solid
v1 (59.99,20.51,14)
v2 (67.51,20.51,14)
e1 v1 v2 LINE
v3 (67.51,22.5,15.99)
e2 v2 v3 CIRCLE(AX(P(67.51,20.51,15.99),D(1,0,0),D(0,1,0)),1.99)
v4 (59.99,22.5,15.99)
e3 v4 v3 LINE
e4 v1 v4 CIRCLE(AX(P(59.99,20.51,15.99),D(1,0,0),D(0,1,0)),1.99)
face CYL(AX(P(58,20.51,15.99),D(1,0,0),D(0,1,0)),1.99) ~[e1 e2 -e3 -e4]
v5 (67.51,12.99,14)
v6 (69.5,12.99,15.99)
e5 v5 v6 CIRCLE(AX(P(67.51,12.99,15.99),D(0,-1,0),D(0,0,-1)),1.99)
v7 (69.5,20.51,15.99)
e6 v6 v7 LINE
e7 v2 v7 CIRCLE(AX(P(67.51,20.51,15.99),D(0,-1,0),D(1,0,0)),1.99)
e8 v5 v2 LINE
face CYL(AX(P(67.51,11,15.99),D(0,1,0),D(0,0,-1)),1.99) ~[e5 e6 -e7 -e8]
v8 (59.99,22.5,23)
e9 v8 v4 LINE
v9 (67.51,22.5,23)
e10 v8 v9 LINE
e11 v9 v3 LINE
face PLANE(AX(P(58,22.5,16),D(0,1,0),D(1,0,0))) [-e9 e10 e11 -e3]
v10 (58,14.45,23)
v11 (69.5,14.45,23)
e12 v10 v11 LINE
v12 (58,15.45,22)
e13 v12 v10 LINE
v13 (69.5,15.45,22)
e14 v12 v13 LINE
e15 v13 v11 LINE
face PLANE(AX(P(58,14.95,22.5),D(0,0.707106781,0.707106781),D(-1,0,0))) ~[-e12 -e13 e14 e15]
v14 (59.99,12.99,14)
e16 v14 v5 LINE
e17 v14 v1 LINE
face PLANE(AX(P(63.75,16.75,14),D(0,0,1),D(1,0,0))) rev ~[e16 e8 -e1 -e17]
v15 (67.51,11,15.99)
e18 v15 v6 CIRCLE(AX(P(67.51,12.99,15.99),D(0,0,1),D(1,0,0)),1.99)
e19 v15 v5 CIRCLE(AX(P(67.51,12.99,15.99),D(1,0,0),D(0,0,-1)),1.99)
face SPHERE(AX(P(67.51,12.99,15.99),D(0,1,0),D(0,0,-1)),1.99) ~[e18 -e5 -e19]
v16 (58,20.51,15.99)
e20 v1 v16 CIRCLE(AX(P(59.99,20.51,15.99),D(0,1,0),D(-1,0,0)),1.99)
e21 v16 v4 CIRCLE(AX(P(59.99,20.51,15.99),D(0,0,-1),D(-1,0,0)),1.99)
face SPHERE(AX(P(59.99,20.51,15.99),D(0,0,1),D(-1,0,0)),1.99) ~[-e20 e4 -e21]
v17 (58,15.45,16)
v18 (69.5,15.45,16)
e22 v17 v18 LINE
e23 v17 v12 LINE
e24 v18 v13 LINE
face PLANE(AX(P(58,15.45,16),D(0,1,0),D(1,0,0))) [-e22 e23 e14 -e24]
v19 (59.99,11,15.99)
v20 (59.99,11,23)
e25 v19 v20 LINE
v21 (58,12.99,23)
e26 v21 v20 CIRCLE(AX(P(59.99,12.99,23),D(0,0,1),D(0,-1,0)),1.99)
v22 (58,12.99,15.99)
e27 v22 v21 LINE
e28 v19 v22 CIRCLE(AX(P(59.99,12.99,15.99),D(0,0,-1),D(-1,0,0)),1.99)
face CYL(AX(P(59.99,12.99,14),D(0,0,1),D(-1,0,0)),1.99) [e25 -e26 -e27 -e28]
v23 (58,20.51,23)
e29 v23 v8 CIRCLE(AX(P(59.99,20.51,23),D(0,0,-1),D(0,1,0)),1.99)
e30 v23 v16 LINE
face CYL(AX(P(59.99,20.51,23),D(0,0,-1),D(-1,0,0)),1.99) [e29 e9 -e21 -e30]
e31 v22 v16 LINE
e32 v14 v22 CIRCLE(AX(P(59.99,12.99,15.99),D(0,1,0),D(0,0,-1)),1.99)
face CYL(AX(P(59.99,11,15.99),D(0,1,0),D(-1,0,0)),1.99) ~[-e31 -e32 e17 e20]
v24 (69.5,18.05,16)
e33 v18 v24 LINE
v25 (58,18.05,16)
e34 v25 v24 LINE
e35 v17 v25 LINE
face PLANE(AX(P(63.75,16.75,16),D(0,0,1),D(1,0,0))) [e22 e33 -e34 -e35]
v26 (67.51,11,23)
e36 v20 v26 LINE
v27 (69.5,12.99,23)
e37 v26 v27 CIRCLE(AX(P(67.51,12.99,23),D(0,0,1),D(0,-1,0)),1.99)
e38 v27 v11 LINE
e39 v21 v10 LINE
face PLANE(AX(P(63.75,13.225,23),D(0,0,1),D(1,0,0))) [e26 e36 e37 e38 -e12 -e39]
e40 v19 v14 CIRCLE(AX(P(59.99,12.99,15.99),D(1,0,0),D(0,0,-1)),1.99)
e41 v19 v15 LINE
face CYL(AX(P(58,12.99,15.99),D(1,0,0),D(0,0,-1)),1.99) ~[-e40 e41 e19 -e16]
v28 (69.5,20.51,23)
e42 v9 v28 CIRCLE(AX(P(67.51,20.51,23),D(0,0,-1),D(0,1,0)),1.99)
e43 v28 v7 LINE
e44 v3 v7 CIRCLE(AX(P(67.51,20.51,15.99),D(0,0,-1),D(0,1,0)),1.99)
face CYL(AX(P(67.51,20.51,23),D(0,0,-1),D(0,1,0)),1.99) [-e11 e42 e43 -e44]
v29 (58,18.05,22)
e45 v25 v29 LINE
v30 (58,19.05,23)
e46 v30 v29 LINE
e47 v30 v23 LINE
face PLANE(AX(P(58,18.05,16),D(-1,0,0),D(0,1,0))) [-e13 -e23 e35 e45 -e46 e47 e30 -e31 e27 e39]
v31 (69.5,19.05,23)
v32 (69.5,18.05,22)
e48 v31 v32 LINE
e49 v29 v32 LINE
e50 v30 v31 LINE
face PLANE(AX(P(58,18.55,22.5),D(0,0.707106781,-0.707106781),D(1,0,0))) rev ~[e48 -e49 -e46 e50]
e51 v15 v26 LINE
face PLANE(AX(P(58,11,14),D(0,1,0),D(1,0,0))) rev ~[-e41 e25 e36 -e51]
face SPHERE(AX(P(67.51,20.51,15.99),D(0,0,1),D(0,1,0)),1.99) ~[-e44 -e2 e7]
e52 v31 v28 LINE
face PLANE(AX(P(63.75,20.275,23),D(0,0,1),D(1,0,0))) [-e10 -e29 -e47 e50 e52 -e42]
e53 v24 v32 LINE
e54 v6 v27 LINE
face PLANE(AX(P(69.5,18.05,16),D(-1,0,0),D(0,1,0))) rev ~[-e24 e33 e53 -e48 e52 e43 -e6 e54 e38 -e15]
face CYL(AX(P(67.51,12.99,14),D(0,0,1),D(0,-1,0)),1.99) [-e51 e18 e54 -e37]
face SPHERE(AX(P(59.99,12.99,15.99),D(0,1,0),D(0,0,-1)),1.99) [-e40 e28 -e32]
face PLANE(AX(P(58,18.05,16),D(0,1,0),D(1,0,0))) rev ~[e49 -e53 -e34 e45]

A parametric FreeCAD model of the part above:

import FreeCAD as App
import Part
import Sketcher
from FreeCAD import Vector
Q = App.Units.Quantity


def edges_at(feature, points):
    """Names of the edges that pass closest to the given points."""
    edges = feature.Shape.Edges
    near = lambda p: min(range(len(edges)), key=lambda i: edges[i].distToShape(Part.Vertex(*p))[0])
    return sorted({f"Edge{near(p) + 1}" for p in points})


def add_polygon(sketch, points):
    """Adds a closed chain of lines whose ends are joined by coincident constraints."""
    first, n = sketch.GeometryCount, len(points)
    for a, b in zip(points, points[1:] + points[:1]):
        sketch.addGeometry(Part.LineSegment(App.Vector(*a, 0), App.Vector(*b, 0)), False)
    for i in range(n):
        sketch.addConstraint(Sketcher.Constraint("Coincident", first + i, 2, first + (i + 1) % n, 1))

doc = App.newDocument("Part")
params = doc.addObject("Spreadsheet::Sheet", "Params")
for row, (alias, value) in enumerate([
    ("sketch1_width", "11.5 mm"),
    ("pad1_length", "2 mm"),
    ("sketch2_width", "11.5 mm"),
    ("sketch2_height", "4.45 mm"),
    ("pad2_length", "7 mm"),
    ("sketch3_width", "11.5 mm"),
    ("sketch3_height", "4.45 mm"),
    ("pad3_length", "7 mm"),
    ("chamfer_size", "1 mm"),
    ("fillet_radius", "1.99 mm"),
], start=1):
    params.set(f"A{row}", alias)
    params.set(f"B{row}", "=" + value)
    params.setAlias(f"B{row}", alias)

body = doc.addObject("PartDesign::Body", "Body")

# Sketch on XY plane
sketch1 = body.newObject("Sketcher::SketchObject", "Sketch")
sketch1.AttachmentSupport = (doc.getObject("XY_Plane"), [""])
sketch1.MapMode = "FlatFace"
sketch1.AttachmentOffset = App.Placement(Vector(0, 0, 14), App.Rotation())
add_polygon(sketch1, [(40, 20.5), (40, 9), (51.5, 9), (51.5, 20.5)])  # lines 0-3
sketch1.addConstraint([
    Sketcher.Constraint("Vertical", 0),
    Sketcher.Constraint("Horizontal", 1),
    Sketcher.Constraint("Vertical", 2),
    Sketcher.Constraint("Horizontal", 3),
    Sketcher.Constraint("Equal", 3, 0),
    Sketcher.Constraint("DistanceX", 1, 1, 1, 2, Q("11.5 mm")),
    Sketcher.Constraint("DistanceX", -1, 1, 0, 2, Q("40 mm")),
    Sketcher.Constraint("DistanceY", -1, 1, 0, 2, Q("9 mm")),
])
sketch1.setExpression("Constraints[9]", "Params.sketch1_width")
pad1 = body.newObject("PartDesign::Pad", "Pad")
pad1.Profile = sketch1
pad1.setExpression("Length", "Params.pad1_length")
body2 = doc.addObject("PartDesign::Body", "Body001")

# Sketch on XY plane
sketch2 = body2.newObject("Sketcher::SketchObject", "Sketch001")
sketch2.AttachmentSupport = (doc.getObject("XY_Plane001"), [""])
sketch2.MapMode = "FlatFace"
sketch2.AttachmentOffset = App.Placement(Vector(0, 0, 16), App.Rotation())
add_polygon(sketch2, [(40, 20.5), (40, 16.05), (51.5, 16.05), (51.5, 20.5)])  # lines 0-3
sketch2.addConstraint([
    Sketcher.Constraint("Vertical", 0),
    Sketcher.Constraint("Horizontal", 1),
    Sketcher.Constraint("Vertical", 2),
    Sketcher.Constraint("Horizontal", 3),
    Sketcher.Constraint("DistanceX", 1, 1, 1, 2, Q("11.5 mm")),
    Sketcher.Constraint("DistanceX", -1, 1, 0, 2, Q("40 mm")),
    Sketcher.Constraint("DistanceY", 0, 2, 0, 1, Q("4.45 mm")),
    Sketcher.Constraint("DistanceY", -1, 1, 2, 2, Q("20.5 mm")),
])
sketch2.setExpression("Constraints[8]", "Params.sketch2_width")
sketch2.setExpression("Constraints[10]", "Params.sketch2_height")
pad2 = body2.newObject("PartDesign::Pad", "Pad001")
pad2.Profile = sketch2
pad2.setExpression("Length", "Params.pad2_length")
body3 = doc.addObject("PartDesign::Body", "Body002")

# Sketch on XY plane
sketch3 = body3.newObject("Sketcher::SketchObject", "Sketch002")
sketch3.AttachmentSupport = (doc.getObject("XY_Plane002"), [""])
sketch3.MapMode = "FlatFace"
sketch3.AttachmentOffset = App.Placement(Vector(0, 0, 16), App.Rotation())
add_polygon(sketch3, [(40, 13.45), (40, 9), (51.5, 9), (51.5, 13.45)])  # lines 0-3
sketch3.addConstraint([
    Sketcher.Constraint("Vertical", 0),
    Sketcher.Constraint("Horizontal", 1),
    Sketcher.Constraint("Vertical", 2),
    Sketcher.Constraint("Horizontal", 3),
    Sketcher.Constraint("DistanceX", 1, 1, 1, 2, Q("11.5 mm")),
    Sketcher.Constraint("DistanceX", -1, 1, 0, 2, Q("40 mm")),
    Sketcher.Constraint("DistanceY", -1, 1, 0, 2, Q("9 mm")),
    Sketcher.Constraint("DistanceY", 0, 2, 0, 1, Q("4.45 mm")),
])
sketch3.setExpression("Constraints[8]", "Params.sketch3_width")
sketch3.setExpression("Constraints[11]", "Params.sketch3_height")
pad3 = body3.newObject("PartDesign::Pad", "Pad002")
pad3.Profile = sketch3
pad3.setExpression("Length", "Params.pad3_length")
doc.recompute()

boolean = body3.newObject("PartDesign::Boolean", "Boolean")
boolean.Type = "Fuse"
boolean.addObjects([body])
doc.recompute()

boolean2 = body3.newObject("PartDesign::Boolean", "Boolean001")
boolean2.Type = "Fuse"
boolean2.addObjects([body2])
doc.recompute()

chamfer = body3.newObject("PartDesign::Chamfer", "Chamfer")
chamfer.Base = (boolean2, edges_at(boolean2, [(45.75, 16.05, 23), (45.75, 13.45, 23)]))
chamfer.setExpression("Size", "Params.chamfer_size")
doc.recompute()

fillet = body3.newObject("PartDesign::Fillet", "Fillet")
fillet.Base = (chamfer, edges_at(chamfer, [
    (40, 20.5, 18.5),
    (51.5, 20.5, 18.5),
    (40, 14.75, 14),
    (45.75, 20.5, 14),
    (51.5, 14.75, 14),
    (45.75, 9, 14),
    (40, 9, 18.5),
    (51.5, 9, 18.5),
]))
fillet.setExpression("Radius", "Params.fillet_radius")
body4 = doc.addObject("PartDesign::Body", "Body003")
doc.recompute()

body3.Placement = App.Placement(Vector(18, 2, 0), App.Rotation(Vector(0, 0, 1), 0))
boolean3 = body4.newObject("PartDesign::Boolean", "Boolean002")
boolean3.Type = "Fuse"
boolean3.addObjects([body3])

doc.recompute()
